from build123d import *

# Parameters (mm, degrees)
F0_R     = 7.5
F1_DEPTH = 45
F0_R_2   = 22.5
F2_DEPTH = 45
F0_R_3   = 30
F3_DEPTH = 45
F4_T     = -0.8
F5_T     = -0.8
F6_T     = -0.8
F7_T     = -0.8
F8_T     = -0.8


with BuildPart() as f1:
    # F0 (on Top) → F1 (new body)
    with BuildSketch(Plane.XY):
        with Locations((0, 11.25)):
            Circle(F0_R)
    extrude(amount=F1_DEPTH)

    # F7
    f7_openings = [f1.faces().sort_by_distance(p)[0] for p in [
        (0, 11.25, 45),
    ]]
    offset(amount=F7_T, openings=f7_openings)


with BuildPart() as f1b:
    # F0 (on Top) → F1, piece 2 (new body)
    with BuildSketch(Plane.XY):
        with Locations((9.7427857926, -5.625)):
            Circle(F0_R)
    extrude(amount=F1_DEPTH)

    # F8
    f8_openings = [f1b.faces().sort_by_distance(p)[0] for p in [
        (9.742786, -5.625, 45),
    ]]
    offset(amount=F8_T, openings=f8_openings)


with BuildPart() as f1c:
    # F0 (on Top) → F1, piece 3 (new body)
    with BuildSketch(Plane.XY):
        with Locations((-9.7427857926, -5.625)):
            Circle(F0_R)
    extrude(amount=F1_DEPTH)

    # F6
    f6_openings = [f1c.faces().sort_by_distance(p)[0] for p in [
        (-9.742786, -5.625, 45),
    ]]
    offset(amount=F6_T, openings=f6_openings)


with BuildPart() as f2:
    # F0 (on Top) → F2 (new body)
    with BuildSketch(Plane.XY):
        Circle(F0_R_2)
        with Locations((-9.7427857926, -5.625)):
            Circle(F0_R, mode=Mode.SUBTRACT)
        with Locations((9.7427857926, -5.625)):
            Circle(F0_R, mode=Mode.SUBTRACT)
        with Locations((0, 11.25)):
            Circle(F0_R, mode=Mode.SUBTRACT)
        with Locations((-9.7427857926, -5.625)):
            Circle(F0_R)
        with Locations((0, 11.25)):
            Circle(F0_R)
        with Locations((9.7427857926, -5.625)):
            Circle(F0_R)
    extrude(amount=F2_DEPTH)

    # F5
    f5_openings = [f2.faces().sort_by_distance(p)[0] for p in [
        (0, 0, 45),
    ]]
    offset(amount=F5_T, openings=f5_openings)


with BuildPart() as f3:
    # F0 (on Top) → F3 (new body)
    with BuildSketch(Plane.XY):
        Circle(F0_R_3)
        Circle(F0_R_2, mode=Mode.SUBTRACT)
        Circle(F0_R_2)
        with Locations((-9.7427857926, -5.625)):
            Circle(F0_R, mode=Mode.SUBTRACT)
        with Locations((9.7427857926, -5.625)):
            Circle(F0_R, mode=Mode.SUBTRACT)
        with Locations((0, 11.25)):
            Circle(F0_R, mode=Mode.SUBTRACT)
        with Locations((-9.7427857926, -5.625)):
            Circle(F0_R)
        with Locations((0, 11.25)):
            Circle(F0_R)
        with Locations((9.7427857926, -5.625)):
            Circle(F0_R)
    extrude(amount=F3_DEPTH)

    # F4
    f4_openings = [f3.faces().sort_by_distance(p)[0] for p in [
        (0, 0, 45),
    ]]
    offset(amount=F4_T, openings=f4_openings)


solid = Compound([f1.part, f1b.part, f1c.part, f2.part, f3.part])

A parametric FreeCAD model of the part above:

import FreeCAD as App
import Part
import Sketcher

V = App.Vector
Q = App.Units.Quantity


def faces_at(feature, points):
    """Names of the faces that lie closest to the given points."""
    faces = feature.Shape.Faces
    near = lambda p: min(range(len(faces)), key=lambda i: faces[i].distToShape(Part.Vertex(*p))[0])
    return sorted({f"Face{near(p) + 1}" for p in points})

doc = App.newDocument("Part")
params = doc.addObject("Spreadsheet::Sheet", "Params")
for row, (alias, value) in enumerate([
    ("sketch1_diameter", "15 mm"),
    ("pad1_length", "45 mm"),
    ("thickness_wall", "0.8 mm"),
    ("sketch2_diameter", "15 mm"),
    ("pad2_length", "45 mm"),
    ("thickness2_wall", "0.8 mm"),
    ("sketch3_diameter", "15 mm"),
    ("pad3_length", "45 mm"),
    ("thickness3_wall", "0.8 mm"),
    ("sketch4_diameter", "45 mm"),
    ("pad4_length", "45 mm"),
    ("thickness4_wall", "0.8 mm"),
    ("sketch5_diameter", "60 mm"),
    ("pad5_length", "45 mm"),
    ("thickness5_wall", "0.8 mm"),
], start=1):
    params.set(f"A{row}", alias)
    params.set(f"B{row}", "=" + value)
    params.setAlias(f"B{row}", alias)

body = doc.addObject("PartDesign::Body", "Body")

# Sketch on XY plane
sketch1 = body.newObject("Sketcher::SketchObject", "Sketch")
sketch1.AttachmentSupport = (doc.getObject("XY_Plane"), [""])
sketch1.MapMode = "FlatFace"
sketch1.addGeometry(Part.Circle(V(0, 11.25, 0), V(0, 0, 1), 7.5), False)
sketch1.addConstraint(Sketcher.Constraint("PointOnObject", 0, 3, -2))
sketch1.addConstraint(Sketcher.Constraint("Diameter", 0, Q("15 mm")))
sketch1.addConstraint(Sketcher.Constraint("DistanceY", -1, 1, 0, 3, Q("11.25 mm")))
sketch1.setExpression("Constraints[1]", "Params.sketch1_diameter")
pad1 = body.newObject("PartDesign::Pad", "Pad")
pad1.Profile = sketch1
pad1.setExpression("Length", "Params.pad1_length")
doc.recompute()

thickness = body.newObject("PartDesign::Thickness", "Thickness")
thickness.Base = (pad1, faces_at(pad1, [(0, 11.25, 45)]))
thickness.setExpression("Value", "Params.thickness_wall")
thickness.Reversed = True
thickness.Join = "Arc"
body2 = doc.addObject("PartDesign::Body", "Body001")

# Sketch on XY plane
sketch2 = body2.newObject("Sketcher::SketchObject", "Sketch001")
sketch2.AttachmentSupport = (doc.getObject("XY_Plane001"), [""])
sketch2.MapMode = "FlatFace"
sketch2.addGeometry(Part.Circle(V(9.742786, -5.625, 0), V(0, 0, 1), 7.5), False)
sketch2.addConstraint(Sketcher.Constraint("Diameter", 0, Q("15 mm")))
sketch2.addConstraint(Sketcher.Constraint("DistanceY", 0, 3, -1, 1, Q("5.625 mm")))
sketch2.addConstraint(Sketcher.Constraint("DistanceX", -1, 1, 0, 3, Q("9.742786 mm")))
sketch2.setExpression("Constraints[0]", "Params.sketch2_diameter")
pad2 = body2.newObject("PartDesign::Pad", "Pad001")
pad2.Profile = sketch2
pad2.setExpression("Length", "Params.pad2_length")
doc.recompute()

thickness2 = body2.newObject("PartDesign::Thickness", "Thickness001")
thickness2.Base = (pad2, faces_at(pad2, [(9.743, -5.625, 45)]))
thickness2.setExpression("Value", "Params.thickness2_wall")
thickness2.Reversed = True
thickness2.Join = "Arc"
body3 = doc.addObject("PartDesign::Body", "Body002")

# Sketch on XY plane
sketch3 = body3.newObject("Sketcher::SketchObject", "Sketch002")
sketch3.AttachmentSupport = (doc.getObject("XY_Plane002"), [""])
sketch3.MapMode = "FlatFace"
sketch3.addGeometry(Part.Circle(V(-9.742786, -5.625, 0), V(0, 0, 1), 7.5), False)
sketch3.addConstraint(Sketcher.Constraint("Diameter", 0, Q("15 mm")))
sketch3.addConstraint(Sketcher.Constraint("DistanceY", 0, 3, -1, 1, Q("5.625 mm")))
sketch3.addConstraint(Sketcher.Constraint("DistanceX", 0, 3, -1, 1, Q("9.742786 mm")))
sketch3.setExpression("Constraints[0]", "Params.sketch3_diameter")
pad3 = body3.newObject("PartDesign::Pad", "Pad002")
pad3.Profile = sketch3
pad3.setExpression("Length", "Params.pad3_length")
doc.recompute()

thickness3 = body3.newObject("PartDesign::Thickness", "Thickness002")
thickness3.Base = (pad3, faces_at(pad3, [(-9.743, -5.625, 45)]))
thickness3.setExpression("Value", "Params.thickness3_wall")
thickness3.Reversed = True
thickness3.Join = "Arc"
body4 = doc.addObject("PartDesign::Body", "Body003")

# Sketch on XY plane
sketch4 = body4.newObject("Sketcher::SketchObject", "Sketch003")
sketch4.AttachmentSupport = (doc.getObject("XY_Plane003"), [""])
sketch4.MapMode = "FlatFace"
sketch4.addGeometry(Part.Circle(V(0, 0, 0), V(0, 0, 1), 22.5), False)
sketch4.addConstraint(Sketcher.Constraint("Coincident", 0, 3, -1, 1))
sketch4.addConstraint(Sketcher.Constraint("Diameter", 0, Q("45 mm")))
sketch4.setExpression("Constraints[1]", "Params.sketch4_diameter")
pad4 = body4.newObject("PartDesign::Pad", "Pad003")
pad4.Profile = sketch4
pad4.setExpression("Length", "Params.pad4_length")
doc.recompute()

thickness4 = body4.newObject("PartDesign::Thickness", "Thickness003")
thickness4.Base = (pad4, faces_at(pad4, [(0, 0, 45)]))
thickness4.setExpression("Value", "Params.thickness4_wall")
thickness4.Reversed = True
thickness4.Join = "Arc"
body5 = doc.addObject("PartDesign::Body", "Body004")

# Sketch on XY plane
sketch5 = body5.newObject("Sketcher::SketchObject", "Sketch004")
sketch5.AttachmentSupport = (doc.getObject("XY_Plane004"), [""])
sketch5.MapMode = "FlatFace"
sketch5.addGeometry(Part.Circle(V(0, 0, 0), V(0, 0, 1), 30), False)
sketch5.addConstraint(Sketcher.Constraint("Coincident", 0, 3, -1, 1))
sketch5.addConstraint(Sketcher.Constraint("Diameter", 0, Q("60 mm")))
sketch5.setExpression("Constraints[1]", "Params.sketch5_diameter")
pad5 = body5.newObject("PartDesign::Pad", "Pad004")
pad5.Profile = sketch5
pad5.setExpression("Length", "Params.pad5_length")
doc.recompute()

thickness5 = body5.newObject("PartDesign::Thickness", "Thickness004")
thickness5.Base = (pad5, faces_at(pad5, [(0, 0, 45)]))
thickness5.setExpression("Value", "Params.thickness5_wall")
thickness5.Reversed = True
thickness5.Join = "Arc"

doc.recompute()
